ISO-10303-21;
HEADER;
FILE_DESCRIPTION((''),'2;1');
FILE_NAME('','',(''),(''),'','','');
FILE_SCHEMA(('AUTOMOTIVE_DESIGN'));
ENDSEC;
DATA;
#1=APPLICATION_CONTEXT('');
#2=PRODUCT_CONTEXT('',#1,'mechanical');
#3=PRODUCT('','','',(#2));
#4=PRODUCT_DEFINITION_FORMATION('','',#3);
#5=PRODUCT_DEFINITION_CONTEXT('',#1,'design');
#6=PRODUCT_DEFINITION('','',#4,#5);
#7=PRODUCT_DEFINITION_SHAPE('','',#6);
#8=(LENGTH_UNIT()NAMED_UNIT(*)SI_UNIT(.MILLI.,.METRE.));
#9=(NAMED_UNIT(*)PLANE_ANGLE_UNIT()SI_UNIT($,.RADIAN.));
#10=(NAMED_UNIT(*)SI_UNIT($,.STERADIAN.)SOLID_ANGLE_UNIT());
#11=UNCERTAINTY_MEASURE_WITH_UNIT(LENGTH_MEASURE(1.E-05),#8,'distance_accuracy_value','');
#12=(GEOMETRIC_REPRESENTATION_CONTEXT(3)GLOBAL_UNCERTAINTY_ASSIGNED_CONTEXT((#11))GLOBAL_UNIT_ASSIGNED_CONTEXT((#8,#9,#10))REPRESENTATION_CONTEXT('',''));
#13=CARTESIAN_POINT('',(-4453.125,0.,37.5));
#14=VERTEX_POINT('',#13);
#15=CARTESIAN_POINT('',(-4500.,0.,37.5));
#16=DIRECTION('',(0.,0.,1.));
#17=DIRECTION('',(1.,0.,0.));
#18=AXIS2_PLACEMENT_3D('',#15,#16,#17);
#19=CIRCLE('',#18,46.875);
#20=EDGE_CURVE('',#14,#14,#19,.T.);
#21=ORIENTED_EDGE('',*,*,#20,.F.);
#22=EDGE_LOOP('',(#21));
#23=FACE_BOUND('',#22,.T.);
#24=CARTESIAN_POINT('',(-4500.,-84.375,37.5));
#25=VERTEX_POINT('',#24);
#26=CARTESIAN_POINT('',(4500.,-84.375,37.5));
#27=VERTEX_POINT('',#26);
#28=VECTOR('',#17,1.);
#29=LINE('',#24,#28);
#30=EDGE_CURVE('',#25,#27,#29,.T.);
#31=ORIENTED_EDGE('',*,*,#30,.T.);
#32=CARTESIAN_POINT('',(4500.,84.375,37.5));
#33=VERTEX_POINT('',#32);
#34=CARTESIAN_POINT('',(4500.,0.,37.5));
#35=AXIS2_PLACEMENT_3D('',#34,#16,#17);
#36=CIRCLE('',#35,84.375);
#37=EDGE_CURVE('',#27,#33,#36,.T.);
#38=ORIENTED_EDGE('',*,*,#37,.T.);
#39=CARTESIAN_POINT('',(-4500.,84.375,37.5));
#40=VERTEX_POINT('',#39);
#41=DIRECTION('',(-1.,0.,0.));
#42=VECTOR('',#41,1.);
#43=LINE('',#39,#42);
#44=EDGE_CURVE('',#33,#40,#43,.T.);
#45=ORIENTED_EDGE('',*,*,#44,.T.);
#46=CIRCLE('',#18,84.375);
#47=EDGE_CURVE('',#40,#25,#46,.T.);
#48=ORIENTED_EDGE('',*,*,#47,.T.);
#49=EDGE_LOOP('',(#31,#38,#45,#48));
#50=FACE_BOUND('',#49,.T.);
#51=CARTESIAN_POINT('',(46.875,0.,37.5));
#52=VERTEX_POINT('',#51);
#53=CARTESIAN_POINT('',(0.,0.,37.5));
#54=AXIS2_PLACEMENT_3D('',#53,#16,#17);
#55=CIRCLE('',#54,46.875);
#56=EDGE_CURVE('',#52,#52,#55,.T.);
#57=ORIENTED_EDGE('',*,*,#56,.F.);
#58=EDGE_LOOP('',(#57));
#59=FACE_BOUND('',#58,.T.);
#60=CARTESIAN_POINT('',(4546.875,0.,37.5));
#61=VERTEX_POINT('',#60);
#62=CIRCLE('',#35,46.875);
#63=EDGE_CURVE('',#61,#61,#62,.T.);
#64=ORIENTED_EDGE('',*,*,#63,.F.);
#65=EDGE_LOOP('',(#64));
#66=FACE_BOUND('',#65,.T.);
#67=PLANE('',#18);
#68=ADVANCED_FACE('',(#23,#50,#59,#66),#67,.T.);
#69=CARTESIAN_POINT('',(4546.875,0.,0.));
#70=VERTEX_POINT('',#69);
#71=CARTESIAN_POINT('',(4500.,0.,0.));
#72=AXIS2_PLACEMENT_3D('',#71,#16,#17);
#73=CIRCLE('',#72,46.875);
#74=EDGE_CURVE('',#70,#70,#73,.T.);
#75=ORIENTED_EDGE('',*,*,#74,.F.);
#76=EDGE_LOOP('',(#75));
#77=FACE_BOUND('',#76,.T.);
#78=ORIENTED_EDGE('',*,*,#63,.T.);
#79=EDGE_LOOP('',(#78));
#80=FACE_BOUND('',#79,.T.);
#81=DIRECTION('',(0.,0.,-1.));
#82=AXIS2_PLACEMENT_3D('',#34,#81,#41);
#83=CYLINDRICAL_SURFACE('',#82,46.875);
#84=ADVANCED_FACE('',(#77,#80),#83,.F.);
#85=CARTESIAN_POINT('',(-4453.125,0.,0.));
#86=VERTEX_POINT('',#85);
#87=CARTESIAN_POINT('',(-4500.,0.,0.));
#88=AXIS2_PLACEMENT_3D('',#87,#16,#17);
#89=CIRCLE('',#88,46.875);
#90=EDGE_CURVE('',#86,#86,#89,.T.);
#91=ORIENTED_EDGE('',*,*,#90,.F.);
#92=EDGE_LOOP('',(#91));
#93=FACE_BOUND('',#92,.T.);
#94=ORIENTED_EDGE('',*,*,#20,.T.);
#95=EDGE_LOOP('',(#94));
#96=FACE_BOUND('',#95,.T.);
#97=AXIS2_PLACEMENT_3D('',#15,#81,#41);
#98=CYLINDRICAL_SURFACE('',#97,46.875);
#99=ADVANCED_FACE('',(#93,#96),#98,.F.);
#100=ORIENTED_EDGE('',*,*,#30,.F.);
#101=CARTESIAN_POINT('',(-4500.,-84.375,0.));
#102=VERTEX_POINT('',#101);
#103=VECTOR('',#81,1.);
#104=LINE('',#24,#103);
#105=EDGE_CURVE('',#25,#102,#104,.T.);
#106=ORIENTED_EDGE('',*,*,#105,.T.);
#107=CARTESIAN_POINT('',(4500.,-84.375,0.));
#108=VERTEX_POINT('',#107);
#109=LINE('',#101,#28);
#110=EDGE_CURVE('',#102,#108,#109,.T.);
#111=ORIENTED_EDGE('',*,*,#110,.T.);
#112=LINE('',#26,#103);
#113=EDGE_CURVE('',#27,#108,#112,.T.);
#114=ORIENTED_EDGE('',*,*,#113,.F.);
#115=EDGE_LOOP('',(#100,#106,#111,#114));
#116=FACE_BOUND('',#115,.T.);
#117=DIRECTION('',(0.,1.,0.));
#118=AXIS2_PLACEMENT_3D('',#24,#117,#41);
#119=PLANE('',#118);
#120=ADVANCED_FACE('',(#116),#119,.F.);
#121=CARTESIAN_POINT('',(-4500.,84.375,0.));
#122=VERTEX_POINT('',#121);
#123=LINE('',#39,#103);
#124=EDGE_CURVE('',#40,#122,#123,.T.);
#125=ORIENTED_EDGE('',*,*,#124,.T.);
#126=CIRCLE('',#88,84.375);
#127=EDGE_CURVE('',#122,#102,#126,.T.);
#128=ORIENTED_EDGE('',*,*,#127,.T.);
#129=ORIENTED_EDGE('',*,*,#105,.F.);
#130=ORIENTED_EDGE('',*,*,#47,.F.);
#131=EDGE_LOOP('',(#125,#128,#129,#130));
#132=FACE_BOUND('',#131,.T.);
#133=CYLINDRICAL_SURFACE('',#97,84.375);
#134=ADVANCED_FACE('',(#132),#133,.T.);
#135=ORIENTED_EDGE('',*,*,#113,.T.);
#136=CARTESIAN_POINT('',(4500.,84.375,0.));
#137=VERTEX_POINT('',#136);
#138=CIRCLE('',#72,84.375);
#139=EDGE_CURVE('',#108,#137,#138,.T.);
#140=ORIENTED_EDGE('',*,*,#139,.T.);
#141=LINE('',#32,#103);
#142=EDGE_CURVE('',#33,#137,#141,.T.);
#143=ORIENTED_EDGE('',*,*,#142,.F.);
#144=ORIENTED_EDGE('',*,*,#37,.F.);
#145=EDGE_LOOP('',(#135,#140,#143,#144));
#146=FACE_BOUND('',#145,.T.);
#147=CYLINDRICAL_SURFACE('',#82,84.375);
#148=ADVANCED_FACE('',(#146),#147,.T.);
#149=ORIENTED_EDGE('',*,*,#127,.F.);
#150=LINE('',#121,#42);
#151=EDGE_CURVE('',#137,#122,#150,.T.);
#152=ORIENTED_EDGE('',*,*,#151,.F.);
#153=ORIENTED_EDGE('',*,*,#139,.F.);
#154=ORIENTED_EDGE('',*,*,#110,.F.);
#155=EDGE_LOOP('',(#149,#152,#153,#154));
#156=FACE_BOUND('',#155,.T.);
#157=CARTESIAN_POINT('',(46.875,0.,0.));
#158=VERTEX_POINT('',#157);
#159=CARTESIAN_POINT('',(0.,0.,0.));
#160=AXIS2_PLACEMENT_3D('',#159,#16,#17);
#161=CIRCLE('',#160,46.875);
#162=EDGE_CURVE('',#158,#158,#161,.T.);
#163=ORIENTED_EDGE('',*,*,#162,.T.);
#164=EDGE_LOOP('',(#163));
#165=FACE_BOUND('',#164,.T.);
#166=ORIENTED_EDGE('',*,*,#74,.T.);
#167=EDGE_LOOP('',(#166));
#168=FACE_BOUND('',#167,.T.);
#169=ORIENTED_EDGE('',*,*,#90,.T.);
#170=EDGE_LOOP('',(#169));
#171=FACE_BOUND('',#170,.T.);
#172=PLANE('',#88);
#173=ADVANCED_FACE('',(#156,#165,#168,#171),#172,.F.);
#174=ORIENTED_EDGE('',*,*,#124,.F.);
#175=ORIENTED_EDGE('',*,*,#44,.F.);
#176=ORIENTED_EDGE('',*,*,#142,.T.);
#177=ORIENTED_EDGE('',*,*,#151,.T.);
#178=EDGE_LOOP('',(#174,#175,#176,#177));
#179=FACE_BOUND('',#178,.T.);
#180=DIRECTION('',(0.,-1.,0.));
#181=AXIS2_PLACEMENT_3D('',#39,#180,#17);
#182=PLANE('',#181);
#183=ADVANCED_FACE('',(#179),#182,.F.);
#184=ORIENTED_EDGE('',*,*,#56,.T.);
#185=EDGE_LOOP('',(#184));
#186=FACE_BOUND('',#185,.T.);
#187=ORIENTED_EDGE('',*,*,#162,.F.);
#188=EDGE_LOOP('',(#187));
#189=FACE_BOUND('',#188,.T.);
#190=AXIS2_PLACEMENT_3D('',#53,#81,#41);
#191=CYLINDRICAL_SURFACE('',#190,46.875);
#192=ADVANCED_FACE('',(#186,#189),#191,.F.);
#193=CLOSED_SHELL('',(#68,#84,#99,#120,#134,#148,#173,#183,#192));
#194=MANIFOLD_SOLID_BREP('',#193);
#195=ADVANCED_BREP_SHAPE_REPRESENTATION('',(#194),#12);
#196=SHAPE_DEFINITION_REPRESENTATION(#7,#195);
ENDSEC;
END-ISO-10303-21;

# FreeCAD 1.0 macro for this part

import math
import FreeCAD as App
import Part
import Sketcher
from FreeCAD import Vector

doc = App.newDocument("Part")
body = doc.addObject("PartDesign::Body", "Body")

sketch1 = body.newObject("Sketcher::SketchObject", "Sketch")
sketch1.AttachmentSupport = (doc.getObject("XY_Plane"), [""])
sketch1.MapMode = "FlatFace"
sketch1.addGeometry([
    Part.LineSegment(Vector(4500, 84, 0), Vector(-4500, 84, 0)),
    Part.ArcOfCircle(Part.Circle(Vector(-4500, 0, 0), Vector(0, 0, 1), 84), math.radians(90), math.radians(270)),
    Part.LineSegment(Vector(-4500, -84, 0), Vector(4500, -84, 0)),
    Part.ArcOfCircle(Part.Circle(Vector(4500, 0, 0), Vector(0, 0, 1), 84), math.radians(-90), math.radians(90)),
    Part.Circle(Vector(4500, 0, 0), Vector(0, 0, 1), 47),
    Part.Circle(Vector(0, 0, 0), Vector(0, 0, 1), 47),
    Part.Circle(Vector(-4500, 0, 0), Vector(0, 0, 1), 47),
], False)
sketch1.addConstraint([
    Sketcher.Constraint("Tangent", 0, 2, 1, 1),
    Sketcher.Constraint("Tangent", 1, 2, 2, 1),
    Sketcher.Constraint("Tangent", 2, 2, 3, 1),
    Sketcher.Constraint("Tangent", 3, 2, 0, 1),
    Sketcher.Constraint("Horizontal", 0),
    Sketcher.Constraint("Horizontal", 2),
    Sketcher.Constraint("Coincident", 5, 3, -1, 1),
    Sketcher.Constraint("Coincident", 4, 3, 3, 3),
    Sketcher.Constraint("Coincident", 6, 3, 1, 3),
    Sketcher.Constraint("Equal", 4, 5),
    Sketcher.Constraint("Equal", 5, 6),
    Sketcher.Constraint("Symmetric", 1, 3, 3, 3, -1, 1),
    Sketcher.Constraint("Diameter", 4, 93.75),
    Sketcher.Constraint("DistanceX", 0, 2, 0, 1, 9000.0),
    Sketcher.Constraint("Radius", 1, 84.375),
])
pad1 = body.newObject("PartDesign::Pad", "Pad")
pad1.Profile = sketch1
pad1.Length = 37.5

doc.recompute()
